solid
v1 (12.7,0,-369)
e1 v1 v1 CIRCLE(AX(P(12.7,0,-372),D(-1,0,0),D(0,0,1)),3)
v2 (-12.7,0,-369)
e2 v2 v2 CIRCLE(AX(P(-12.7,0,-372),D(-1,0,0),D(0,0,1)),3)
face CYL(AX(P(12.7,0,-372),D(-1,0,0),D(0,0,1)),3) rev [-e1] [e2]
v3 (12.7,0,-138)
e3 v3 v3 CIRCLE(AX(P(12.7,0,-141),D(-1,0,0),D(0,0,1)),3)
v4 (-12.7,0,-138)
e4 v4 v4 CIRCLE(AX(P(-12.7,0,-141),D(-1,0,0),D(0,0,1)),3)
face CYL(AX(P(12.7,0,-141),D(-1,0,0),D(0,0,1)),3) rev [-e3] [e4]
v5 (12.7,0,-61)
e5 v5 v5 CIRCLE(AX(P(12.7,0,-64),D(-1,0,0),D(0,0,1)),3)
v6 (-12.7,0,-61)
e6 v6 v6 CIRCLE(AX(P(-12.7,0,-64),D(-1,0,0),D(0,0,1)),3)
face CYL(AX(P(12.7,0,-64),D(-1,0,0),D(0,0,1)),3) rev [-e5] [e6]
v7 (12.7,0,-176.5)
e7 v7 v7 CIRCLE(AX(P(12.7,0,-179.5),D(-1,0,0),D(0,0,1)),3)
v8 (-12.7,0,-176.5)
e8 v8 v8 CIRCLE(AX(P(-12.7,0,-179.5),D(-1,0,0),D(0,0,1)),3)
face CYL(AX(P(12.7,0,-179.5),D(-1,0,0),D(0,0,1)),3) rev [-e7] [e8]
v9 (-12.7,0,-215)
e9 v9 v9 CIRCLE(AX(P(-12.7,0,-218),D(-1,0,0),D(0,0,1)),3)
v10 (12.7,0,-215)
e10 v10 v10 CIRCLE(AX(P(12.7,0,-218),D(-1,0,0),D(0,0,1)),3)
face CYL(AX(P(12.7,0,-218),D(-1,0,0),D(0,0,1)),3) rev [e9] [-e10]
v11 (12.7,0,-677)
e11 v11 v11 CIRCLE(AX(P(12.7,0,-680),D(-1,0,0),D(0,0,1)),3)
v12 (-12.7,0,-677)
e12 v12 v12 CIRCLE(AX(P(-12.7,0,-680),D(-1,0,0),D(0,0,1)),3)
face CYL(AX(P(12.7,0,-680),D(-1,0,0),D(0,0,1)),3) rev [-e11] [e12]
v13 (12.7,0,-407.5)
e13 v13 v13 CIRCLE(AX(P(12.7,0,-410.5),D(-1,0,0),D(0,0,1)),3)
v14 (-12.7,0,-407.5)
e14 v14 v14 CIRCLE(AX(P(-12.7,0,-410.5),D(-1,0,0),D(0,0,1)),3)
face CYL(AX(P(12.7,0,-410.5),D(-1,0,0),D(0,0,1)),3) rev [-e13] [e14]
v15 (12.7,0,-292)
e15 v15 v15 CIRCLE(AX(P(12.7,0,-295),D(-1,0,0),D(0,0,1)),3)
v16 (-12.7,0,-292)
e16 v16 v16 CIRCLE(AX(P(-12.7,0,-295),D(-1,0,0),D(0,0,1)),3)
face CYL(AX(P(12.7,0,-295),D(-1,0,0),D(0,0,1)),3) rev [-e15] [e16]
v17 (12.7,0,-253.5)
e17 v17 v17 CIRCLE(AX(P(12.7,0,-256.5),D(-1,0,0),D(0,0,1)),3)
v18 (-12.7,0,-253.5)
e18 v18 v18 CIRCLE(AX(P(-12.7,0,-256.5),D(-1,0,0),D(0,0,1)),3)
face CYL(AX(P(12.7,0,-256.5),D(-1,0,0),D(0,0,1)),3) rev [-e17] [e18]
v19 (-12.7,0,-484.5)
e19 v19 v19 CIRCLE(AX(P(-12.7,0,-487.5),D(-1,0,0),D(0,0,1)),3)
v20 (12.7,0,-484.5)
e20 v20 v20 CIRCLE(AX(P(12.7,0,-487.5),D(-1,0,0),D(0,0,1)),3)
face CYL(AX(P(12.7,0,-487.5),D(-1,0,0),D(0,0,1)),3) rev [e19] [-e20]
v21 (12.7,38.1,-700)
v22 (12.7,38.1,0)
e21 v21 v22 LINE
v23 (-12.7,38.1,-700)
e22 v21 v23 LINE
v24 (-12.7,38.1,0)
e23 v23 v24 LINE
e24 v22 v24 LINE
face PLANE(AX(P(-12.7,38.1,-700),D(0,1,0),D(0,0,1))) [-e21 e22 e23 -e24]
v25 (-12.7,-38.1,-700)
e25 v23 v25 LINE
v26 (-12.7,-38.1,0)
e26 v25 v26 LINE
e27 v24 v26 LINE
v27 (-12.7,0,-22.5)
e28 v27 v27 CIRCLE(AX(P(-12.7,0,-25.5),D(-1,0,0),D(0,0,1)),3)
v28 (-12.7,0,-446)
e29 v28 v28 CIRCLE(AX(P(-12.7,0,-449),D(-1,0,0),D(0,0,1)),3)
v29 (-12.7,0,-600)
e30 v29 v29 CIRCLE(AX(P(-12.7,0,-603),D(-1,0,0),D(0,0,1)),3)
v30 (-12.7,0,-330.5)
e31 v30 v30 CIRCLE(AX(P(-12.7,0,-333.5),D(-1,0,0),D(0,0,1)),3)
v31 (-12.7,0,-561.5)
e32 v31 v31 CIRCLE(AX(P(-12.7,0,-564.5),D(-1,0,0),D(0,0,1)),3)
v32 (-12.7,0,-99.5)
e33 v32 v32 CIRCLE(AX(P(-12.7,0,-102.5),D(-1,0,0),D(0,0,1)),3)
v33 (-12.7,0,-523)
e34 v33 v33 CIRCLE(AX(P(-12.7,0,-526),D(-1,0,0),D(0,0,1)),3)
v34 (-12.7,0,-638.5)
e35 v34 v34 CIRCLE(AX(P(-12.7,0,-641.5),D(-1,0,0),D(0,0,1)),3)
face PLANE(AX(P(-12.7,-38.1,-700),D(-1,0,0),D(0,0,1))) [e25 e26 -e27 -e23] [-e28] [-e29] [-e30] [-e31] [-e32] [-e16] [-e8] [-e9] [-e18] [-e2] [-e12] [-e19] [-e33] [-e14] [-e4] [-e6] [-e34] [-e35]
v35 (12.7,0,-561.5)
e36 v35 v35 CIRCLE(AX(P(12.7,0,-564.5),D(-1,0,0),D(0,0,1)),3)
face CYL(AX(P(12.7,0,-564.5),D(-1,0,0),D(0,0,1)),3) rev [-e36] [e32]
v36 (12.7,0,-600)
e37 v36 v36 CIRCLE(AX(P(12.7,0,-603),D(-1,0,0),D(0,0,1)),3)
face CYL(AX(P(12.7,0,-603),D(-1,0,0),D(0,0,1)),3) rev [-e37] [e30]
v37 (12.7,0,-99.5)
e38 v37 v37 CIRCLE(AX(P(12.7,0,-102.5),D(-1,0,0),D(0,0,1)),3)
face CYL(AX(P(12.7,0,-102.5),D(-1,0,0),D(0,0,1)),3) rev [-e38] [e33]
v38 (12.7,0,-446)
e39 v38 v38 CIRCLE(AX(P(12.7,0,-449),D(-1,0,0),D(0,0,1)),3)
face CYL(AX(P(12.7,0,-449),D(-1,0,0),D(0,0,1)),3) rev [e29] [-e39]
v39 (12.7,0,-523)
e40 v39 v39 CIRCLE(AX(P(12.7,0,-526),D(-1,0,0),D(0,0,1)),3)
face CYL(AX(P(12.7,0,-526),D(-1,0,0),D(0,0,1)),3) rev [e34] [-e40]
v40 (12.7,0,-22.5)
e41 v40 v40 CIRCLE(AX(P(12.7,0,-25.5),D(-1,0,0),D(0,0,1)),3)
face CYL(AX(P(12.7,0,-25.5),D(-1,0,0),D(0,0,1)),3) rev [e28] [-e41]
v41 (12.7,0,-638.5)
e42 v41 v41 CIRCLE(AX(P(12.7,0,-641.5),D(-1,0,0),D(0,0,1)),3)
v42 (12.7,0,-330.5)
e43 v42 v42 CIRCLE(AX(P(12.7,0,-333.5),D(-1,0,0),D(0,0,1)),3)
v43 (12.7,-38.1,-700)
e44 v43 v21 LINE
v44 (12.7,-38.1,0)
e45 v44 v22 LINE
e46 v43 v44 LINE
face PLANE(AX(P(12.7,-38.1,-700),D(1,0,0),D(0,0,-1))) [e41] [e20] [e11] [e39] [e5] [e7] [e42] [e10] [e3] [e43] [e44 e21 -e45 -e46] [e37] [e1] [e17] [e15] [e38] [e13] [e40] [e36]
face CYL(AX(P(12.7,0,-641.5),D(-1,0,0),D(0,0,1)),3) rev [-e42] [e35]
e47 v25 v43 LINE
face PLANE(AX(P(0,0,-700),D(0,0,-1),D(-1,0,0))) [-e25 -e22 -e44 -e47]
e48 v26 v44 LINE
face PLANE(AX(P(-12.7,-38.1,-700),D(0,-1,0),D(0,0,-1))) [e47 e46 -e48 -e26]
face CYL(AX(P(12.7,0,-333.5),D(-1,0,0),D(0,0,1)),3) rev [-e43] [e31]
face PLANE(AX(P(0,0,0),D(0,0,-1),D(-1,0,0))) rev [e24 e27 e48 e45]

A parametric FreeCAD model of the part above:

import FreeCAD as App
import Part
import Sketcher
from FreeCAD import Vector
Q = App.Units.Quantity

doc = App.newDocument("Part")
body = doc.addObject("PartDesign::Body", "Body")

sketch1 = doc.addObject("Sketcher::SketchObject", "Sketch")
body.addObject(sketch1)
sketch1.AttachmentSupport = (doc.XY_Plane, [""])
sketch1.MapMode = "FlatFace"
sketch1.addGeometry(Part.LineSegment(Vector(-13, 38, 0), Vector(-13, -38, 0)), False)
sketch1.addGeometry(Part.LineSegment(Vector(-13, -38, 0), Vector(13, -38, 0)), False)
sketch1.addGeometry(Part.LineSegment(Vector(13, -38, 0), Vector(13, 38, 0)), False)
sketch1.addGeometry(Part.LineSegment(Vector(13, 38, 0), Vector(-13, 38, 0)), False)
sketch1.addConstraint(Sketcher.Constraint("Coincident", 0, 2, 1, 1))
sketch1.addConstraint(Sketcher.Constraint("Coincident", 1, 2, 2, 1))
sketch1.addConstraint(Sketcher.Constraint("Coincident", 2, 2, 3, 1))
sketch1.addConstraint(Sketcher.Constraint("Coincident", 3, 2, 0, 1))
sketch1.addConstraint(Sketcher.Constraint("Vertical", 0))
sketch1.addConstraint(Sketcher.Constraint("Horizontal", 1))
sketch1.addConstraint(Sketcher.Constraint("Vertical", 2))
sketch1.addConstraint(Sketcher.Constraint("Horizontal", 3))
sketch1.addConstraint(Sketcher.Constraint("Symmetric", 0, 2, 2, 2, -1, 1))
sketch1.addConstraint(Sketcher.Constraint("DistanceX", 1, 1, 1, 2, Q("25.4 mm")))
sketch1.addConstraint(Sketcher.Constraint("DistanceY", 0, 2, 0, 1, Q("76.2 mm")))
pad1 = doc.addObject("PartDesign::Pad", "Pad")
body.addObject(pad1)
pad1.Profile = sketch1
pad1.Length = 700
pad1.Reversed = True

sketch2 = doc.addObject("Sketcher::SketchObject", "Sketch001")
body.addObject(sketch2)
sketch2.AttachmentSupport = (doc.YZ_Plane, [""])
sketch2.MapMode = "FlatFace"
sketch2.AttachmentOffset = App.Placement(Vector(0, 0, -12.7), App.Rotation())
sketch2.addGeometry(Part.Circle(Vector(0, -680, 0), Vector(0, 0, 1), 3), False)
sketch2.addGeometry(Part.Circle(Vector(0, -641.5, 0), Vector(0, 0, 1), 3), False)
sketch2.addGeometry(Part.Circle(Vector(0, -603, 0), Vector(0, 0, 1), 3), False)
sketch2.addGeometry(Part.Circle(Vector(0, -564.5, 0), Vector(0, 0, 1), 3), False)
sketch2.addGeometry(Part.Circle(Vector(0, -526, 0), Vector(0, 0, 1), 3), False)
sketch2.addGeometry(Part.Circle(Vector(0, -487.5, 0), Vector(0, 0, 1), 3), False)
sketch2.addGeometry(Part.Circle(Vector(0, -449, 0), Vector(0, 0, 1), 3), False)
sketch2.addGeometry(Part.Circle(Vector(0, -410.5, 0), Vector(0, 0, 1), 3), False)
sketch2.addGeometry(Part.Circle(Vector(0, -372, 0), Vector(0, 0, 1), 3), False)
sketch2.addGeometry(Part.Circle(Vector(0, -333.5, 0), Vector(0, 0, 1), 3), False)
sketch2.addGeometry(Part.Circle(Vector(0, -295, 0), Vector(0, 0, 1), 3), False)
sketch2.addGeometry(Part.Circle(Vector(0, -256.5, 0), Vector(0, 0, 1), 3), False)
sketch2.addGeometry(Part.Circle(Vector(0, -218, 0), Vector(0, 0, 1), 3), False)
sketch2.addGeometry(Part.Circle(Vector(0, -179.5, 0), Vector(0, 0, 1), 3), False)
sketch2.addGeometry(Part.Circle(Vector(0, -141, 0), Vector(0, 0, 1), 3), False)
sketch2.addGeometry(Part.Circle(Vector(0, -102.5, 0), Vector(0, 0, 1), 3), False)
sketch2.addGeometry(Part.Circle(Vector(0, -64, 0), Vector(0, 0, 1), 3), False)
sketch2.addGeometry(Part.Circle(Vector(0, -25.5, 0), Vector(0, 0, 1), 3), False)
sketch2.addConstraint(Sketcher.Constraint("Equal", 0, 1))
sketch2.addConstraint(Sketcher.Constraint("Equal", 1, 2))
sketch2.addConstraint(Sketcher.Constraint("Equal", 2, 3))
sketch2.addConstraint(Sketcher.Constraint("Equal", 3, 4))
sketch2.addConstraint(Sketcher.Constraint("Equal", 4, 5))
sketch2.addConstraint(Sketcher.Constraint("Equal", 5, 6))
sketch2.addConstraint(Sketcher.Constraint("Equal", 6, 7))
sketch2.addConstraint(Sketcher.Constraint("Equal", 7, 8))
sketch2.addConstraint(Sketcher.Constraint("Equal", 8, 9))
sketch2.addConstraint(Sketcher.Constraint("Equal", 9, 10))
sketch2.addConstraint(Sketcher.Constraint("Equal", 10, 11))
sketch2.addConstraint(Sketcher.Constraint("Equal", 11, 12))
sketch2.addConstraint(Sketcher.Constraint("Equal", 12, 13))
sketch2.addConstraint(Sketcher.Constraint("Equal", 13, 14))
sketch2.addConstraint(Sketcher.Constraint("Equal", 14, 15))
sketch2.addConstraint(Sketcher.Constraint("Equal", 15, 16))
sketch2.addConstraint(Sketcher.Constraint("Equal", 16, 17))
sketch2.addConstraint(Sketcher.Constraint("PointOnObject", 0, 3, -2))
sketch2.addConstraint(Sketcher.Constraint("PointOnObject", 1, 3, -2))
sketch2.addConstraint(Sketcher.Constraint("PointOnObject", 2, 3, -2))
sketch2.addConstraint(Sketcher.Constraint("PointOnObject", 3, 3, -2))
sketch2.addConstraint(Sketcher.Constraint("PointOnObject", 4, 3, -2))
sketch2.addConstraint(Sketcher.Constraint("PointOnObject", 5, 3, -2))
sketch2.addConstraint(Sketcher.Constraint("PointOnObject", 6, 3, -2))
sketch2.addConstraint(Sketcher.Constraint("PointOnObject", 7, 3, -2))
sketch2.addConstraint(Sketcher.Constraint("PointOnObject", 8, 3, -2))
sketch2.addConstraint(Sketcher.Constraint("PointOnObject", 9, 3, -2))
sketch2.addConstraint(Sketcher.Constraint("PointOnObject", 10, 3, -2))
sketch2.addConstraint(Sketcher.Constraint("PointOnObject", 11, 3, -2))
sketch2.addConstraint(Sketcher.Constraint("PointOnObject", 12, 3, -2))
sketch2.addConstraint(Sketcher.Constraint("PointOnObject", 13, 3, -2))
sketch2.addConstraint(Sketcher.Constraint("PointOnObject", 14, 3, -2))
sketch2.addConstraint(Sketcher.Constraint("PointOnObject", 15, 3, -2))
sketch2.addConstraint(Sketcher.Constraint("PointOnObject", 16, 3, -2))
sketch2.addConstraint(Sketcher.Constraint("PointOnObject", 17, 3, -2))
sketch2.addConstraint(Sketcher.Constraint("Diameter", 0, Q("6 mm")))
sketch2.addConstraint(Sketcher.Constraint("DistanceY", 0, 3, -1, 1, Q("680 mm")))
sketch2.addConstraint(Sketcher.Constraint("DistanceY", 2, 3, -1, 1, Q("603 mm")))
sketch2.addConstraint(Sketcher.Constraint("DistanceY", 4, 3, -1, 1, Q("526 mm")))
sketch2.addConstraint(Sketcher.Constraint("DistanceY", 6, 3, -1, 1, Q("449 mm")))
sketch2.addConstraint(Sketcher.Constraint("DistanceY", 8, 3, -1, 1, Q("372 mm")))
sketch2.addConstraint(Sketcher.Constraint("DistanceY", 10, 3, -1, 1, Q("295 mm")))
sketch2.addConstraint(Sketcher.Constraint("DistanceY", 12, 3, -1, 1, Q("218 mm")))
sketch2.addConstraint(Sketcher.Constraint("DistanceY", 14, 3, -1, 1, Q("141 mm")))
sketch2.addConstraint(Sketcher.Constraint("DistanceY", 16, 3, -1, 1, Q("64 mm")))
sketch2.addConstraint(Sketcher.Constraint("DistanceY", 1, 3, 3, 3, Q("77 mm")))
sketch2.addConstraint(Sketcher.Constraint("DistanceY", 3, 3, 5, 3, Q("77 mm")))
sketch2.addConstraint(Sketcher.Constraint("DistanceY", 5, 3, 7, 3, Q("77 mm")))
sketch2.addConstraint(Sketcher.Constraint("DistanceY", 7, 3, 9, 3, Q("77 mm")))
sketch2.addConstraint(Sketcher.Constraint("DistanceY", 9, 3, 11, 3, Q("77 mm")))
sketch2.addConstraint(Sketcher.Constraint("DistanceY", 11, 3, 13, 3, Q("77 mm")))
sketch2.addConstraint(Sketcher.Constraint("DistanceY", 13, 3, 15, 3, Q("77 mm")))
sketch2.addConstraint(Sketcher.Constraint("DistanceY", 15, 3, 17, 3, Q("77 mm")))
sketch2.addConstraint(Sketcher.Constraint("DistanceY", 1, 3, -1, 1, Q("641.5 mm")))
pocket1 = doc.addObject("PartDesign::Pocket", "Pocket")
body.addObject(pocket1)
pocket1.Profile = sketch2
pocket1.Type = "ThroughAll"
pocket1.Reversed = True

doc.recompute()
